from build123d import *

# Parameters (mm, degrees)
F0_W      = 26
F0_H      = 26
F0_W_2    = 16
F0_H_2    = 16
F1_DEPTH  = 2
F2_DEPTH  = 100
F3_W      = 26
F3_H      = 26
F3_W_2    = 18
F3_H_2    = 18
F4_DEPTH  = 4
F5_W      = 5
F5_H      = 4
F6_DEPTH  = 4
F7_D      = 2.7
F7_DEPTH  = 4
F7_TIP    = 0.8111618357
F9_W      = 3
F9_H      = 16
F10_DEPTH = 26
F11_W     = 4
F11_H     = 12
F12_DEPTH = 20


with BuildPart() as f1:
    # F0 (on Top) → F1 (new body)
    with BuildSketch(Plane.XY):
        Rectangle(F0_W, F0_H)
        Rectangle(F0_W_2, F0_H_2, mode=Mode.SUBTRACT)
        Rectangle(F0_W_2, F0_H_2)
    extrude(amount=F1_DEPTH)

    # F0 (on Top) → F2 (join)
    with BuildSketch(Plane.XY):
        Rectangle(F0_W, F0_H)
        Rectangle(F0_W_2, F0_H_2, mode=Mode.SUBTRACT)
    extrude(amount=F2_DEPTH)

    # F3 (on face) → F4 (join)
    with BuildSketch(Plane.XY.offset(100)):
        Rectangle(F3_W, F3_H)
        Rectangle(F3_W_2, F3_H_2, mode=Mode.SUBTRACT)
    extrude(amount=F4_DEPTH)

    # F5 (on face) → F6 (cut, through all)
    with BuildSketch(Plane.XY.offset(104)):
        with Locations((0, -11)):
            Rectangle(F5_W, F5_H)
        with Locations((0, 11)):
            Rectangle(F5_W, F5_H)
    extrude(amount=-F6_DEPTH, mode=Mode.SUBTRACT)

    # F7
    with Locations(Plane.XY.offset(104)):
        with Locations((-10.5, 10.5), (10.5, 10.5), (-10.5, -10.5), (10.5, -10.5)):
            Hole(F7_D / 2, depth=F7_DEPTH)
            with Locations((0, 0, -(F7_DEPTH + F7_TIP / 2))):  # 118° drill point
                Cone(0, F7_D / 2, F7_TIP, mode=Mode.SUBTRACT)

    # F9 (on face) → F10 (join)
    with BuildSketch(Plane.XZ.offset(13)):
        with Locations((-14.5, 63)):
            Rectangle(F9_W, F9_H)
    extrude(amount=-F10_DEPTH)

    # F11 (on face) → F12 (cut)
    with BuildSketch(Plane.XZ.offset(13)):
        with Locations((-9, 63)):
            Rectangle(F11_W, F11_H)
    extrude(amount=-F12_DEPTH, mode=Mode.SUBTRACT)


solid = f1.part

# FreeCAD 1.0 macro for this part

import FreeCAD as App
import Part
import Sketcher
from FreeCAD import Vector
Q = App.Units.Quantity

doc = App.newDocument("Part")
body = doc.addObject("PartDesign::Body", "Body")

# Sketch on XY plane
sketch1 = body.newObject("Sketcher::SketchObject", "Sketch")
sketch1.AttachmentSupport = (doc.getObject("XY_Plane"), [""])
sketch1.MapMode = "FlatFace"
sketch1.addGeometry(Part.LineSegment(Vector(-13, 13, 0), Vector(-13, -13, 0)), False)
sketch1.addGeometry(Part.LineSegment(Vector(-13, -13, 0), Vector(13, -13, 0)), False)
sketch1.addGeometry(Part.LineSegment(Vector(13, -13, 0), Vector(13, 13, 0)), False)
sketch1.addGeometry(Part.LineSegment(Vector(13, 13, 0), Vector(-13, 13, 0)), False)
sketch1.addConstraint(Sketcher.Constraint("Coincident", 0, 2, 1, 1))
sketch1.addConstraint(Sketcher.Constraint("Coincident", 1, 2, 2, 1))
sketch1.addConstraint(Sketcher.Constraint("Coincident", 2, 2, 3, 1))
sketch1.addConstraint(Sketcher.Constraint("Coincident", 3, 2, 0, 1))
sketch1.addConstraint(Sketcher.Constraint("Vertical", 0))
sketch1.addConstraint(Sketcher.Constraint("Horizontal", 1))
sketch1.addConstraint(Sketcher.Constraint("Vertical", 2))
sketch1.addConstraint(Sketcher.Constraint("Horizontal", 3))
sketch1.addConstraint(Sketcher.Constraint("Symmetric", 0, 2, 2, 2, -1, 1))
sketch1.addConstraint(Sketcher.Constraint("Equal", 3, 0))
sketch1.addConstraint(Sketcher.Constraint("DistanceX", 1, 1, 1, 2, Q("26 mm")))
pad1 = body.newObject("PartDesign::Pad", "Pad")
pad1.Profile = sketch1
pad1.Length = 2

# Sketch on XY plane
sketch2 = body.newObject("Sketcher::SketchObject", "Sketch001")
sketch2.AttachmentSupport = (doc.getObject("XY_Plane"), [""])
sketch2.MapMode = "FlatFace"
sketch2.addGeometry(Part.LineSegment(Vector(-13, 13, 0), Vector(-13, -13, 0)), False)
sketch2.addGeometry(Part.LineSegment(Vector(-13, -13, 0), Vector(13, -13, 0)), False)
sketch2.addGeometry(Part.LineSegment(Vector(13, -13, 0), Vector(13, 13, 0)), False)
sketch2.addGeometry(Part.LineSegment(Vector(13, 13, 0), Vector(-13, 13, 0)), False)
sketch2.addGeometry(Part.LineSegment(Vector(8, -8, 0), Vector(-8, -8, 0)), False)
sketch2.addGeometry(Part.LineSegment(Vector(-8, -8, 0), Vector(-8, 8, 0)), False)
sketch2.addGeometry(Part.LineSegment(Vector(-8, 8, 0), Vector(8, 8, 0)), False)
sketch2.addGeometry(Part.LineSegment(Vector(8, 8, 0), Vector(8, -8, 0)), False)
sketch2.addConstraint(Sketcher.Constraint("Coincident", 0, 2, 1, 1))
sketch2.addConstraint(Sketcher.Constraint("Coincident", 1, 2, 2, 1))
sketch2.addConstraint(Sketcher.Constraint("Coincident", 2, 2, 3, 1))
sketch2.addConstraint(Sketcher.Constraint("Coincident", 3, 2, 0, 1))
sketch2.addConstraint(Sketcher.Constraint("Coincident", 4, 2, 5, 1))
sketch2.addConstraint(Sketcher.Constraint("Coincident", 5, 2, 6, 1))
sketch2.addConstraint(Sketcher.Constraint("Coincident", 6, 2, 7, 1))
sketch2.addConstraint(Sketcher.Constraint("Coincident", 7, 2, 4, 1))
sketch2.addConstraint(Sketcher.Constraint("Vertical", 0))
sketch2.addConstraint(Sketcher.Constraint("Horizontal", 1))
sketch2.addConstraint(Sketcher.Constraint("Vertical", 2))
sketch2.addConstraint(Sketcher.Constraint("Horizontal", 3))
sketch2.addConstraint(Sketcher.Constraint("Horizontal", 4))
sketch2.addConstraint(Sketcher.Constraint("Vertical", 5))
sketch2.addConstraint(Sketcher.Constraint("Horizontal", 6))
sketch2.addConstraint(Sketcher.Constraint("Vertical", 7))
sketch2.addConstraint(Sketcher.Constraint("Symmetric", 0, 2, 2, 2, -1, 1))
sketch2.addConstraint(Sketcher.Constraint("Symmetric", 4, 2, 6, 2, -1, 1))
sketch2.addConstraint(Sketcher.Constraint("Equal", 3, 0))
sketch2.addConstraint(Sketcher.Constraint("Equal", 6, 5))
sketch2.addConstraint(Sketcher.Constraint("DistanceX", 1, 1, 1, 2, Q("26 mm")))
sketch2.addConstraint(Sketcher.Constraint("DistanceX", 4, 2, 4, 1, Q("16 mm")))
pad2 = body.newObject("PartDesign::Pad", "Pad001")
pad2.Profile = sketch2
pad2.Length = 100

# Sketch on XY plane
sketch3 = body.newObject("Sketcher::SketchObject", "Sketch002")
sketch3.AttachmentSupport = (doc.getObject("XY_Plane"), [""])
sketch3.MapMode = "FlatFace"
sketch3.AttachmentOffset = App.Placement(Vector(0, 0, 100), App.Rotation())
sketch3.addGeometry(Part.LineSegment(Vector(-13, 13, 0), Vector(-13, -13, 0)), False)
sketch3.addGeometry(Part.LineSegment(Vector(-13, -13, 0), Vector(13, -13, 0)), False)
sketch3.addGeometry(Part.LineSegment(Vector(13, -13, 0), Vector(13, 13, 0)), False)
sketch3.addGeometry(Part.LineSegment(Vector(13, 13, 0), Vector(-13, 13, 0)), False)
sketch3.addGeometry(Part.LineSegment(Vector(9, -9, 0), Vector(-9, -9, 0)), False)
sketch3.addGeometry(Part.LineSegment(Vector(-9, -9, 0), Vector(-9, 9, 0)), False)
sketch3.addGeometry(Part.LineSegment(Vector(-9, 9, 0), Vector(9, 9, 0)), False)
sketch3.addGeometry(Part.LineSegment(Vector(9, 9, 0), Vector(9, -9, 0)), False)
sketch3.addConstraint(Sketcher.Constraint("Coincident", 0, 2, 1, 1))
sketch3.addConstraint(Sketcher.Constraint("Coincident", 1, 2, 2, 1))
sketch3.addConstraint(Sketcher.Constraint("Coincident", 2, 2, 3, 1))
sketch3.addConstraint(Sketcher.Constraint("Coincident", 3, 2, 0, 1))
sketch3.addConstraint(Sketcher.Constraint("Coincident", 4, 2, 5, 1))
sketch3.addConstraint(Sketcher.Constraint("Coincident", 5, 2, 6, 1))
sketch3.addConstraint(Sketcher.Constraint("Coincident", 6, 2, 7, 1))
sketch3.addConstraint(Sketcher.Constraint("Coincident", 7, 2, 4, 1))
sketch3.addConstraint(Sketcher.Constraint("Vertical", 0))
sketch3.addConstraint(Sketcher.Constraint("Horizontal", 1))
sketch3.addConstraint(Sketcher.Constraint("Vertical", 2))
sketch3.addConstraint(Sketcher.Constraint("Horizontal", 3))
sketch3.addConstraint(Sketcher.Constraint("Horizontal", 4))
sketch3.addConstraint(Sketcher.Constraint("Vertical", 5))
sketch3.addConstraint(Sketcher.Constraint("Horizontal", 6))
sketch3.addConstraint(Sketcher.Constraint("Vertical", 7))
sketch3.addConstraint(Sketcher.Constraint("Symmetric", 0, 2, 2, 2, -1, 1))
sketch3.addConstraint(Sketcher.Constraint("Symmetric", 4, 2, 6, 2, -1, 1))
sketch3.addConstraint(Sketcher.Constraint("Equal", 3, 0))
sketch3.addConstraint(Sketcher.Constraint("Equal", 6, 5))
sketch3.addConstraint(Sketcher.Constraint("DistanceX", 1, 1, 1, 2, Q("26 mm")))
sketch3.addConstraint(Sketcher.Constraint("DistanceX", 4, 2, 4, 1, Q("18 mm")))
pad3 = body.newObject("PartDesign::Pad", "Pad002")
pad3.Profile = sketch3
pad3.Length = 4

# Sketch on XY plane
sketch4 = body.newObject("Sketcher::SketchObject", "Sketch003")
sketch4.AttachmentSupport = (doc.getObject("XY_Plane"), [""])
sketch4.MapMode = "FlatFace"
sketch4.AttachmentOffset = App.Placement(Vector(0, 0, 104), App.Rotation())
sketch4.addGeometry(Part.LineSegment(Vector(-2.5, -9, 0), Vector(-2.5, -13, 0)), False)
sketch4.addGeometry(Part.LineSegment(Vector(-2.5, -13, 0), Vector(2.5, -13, 0)), False)
sketch4.addGeometry(Part.LineSegment(Vector(2.5, -13, 0), Vector(2.5, -9, 0)), False)
sketch4.addGeometry(Part.LineSegment(Vector(2.5, -9, 0), Vector(-2.5, -9, 0)), False)
sketch4.addGeometry(Part.LineSegment(Vector(-2.5, 13, 0), Vector(-2.5, 9, 0)), False)
sketch4.addGeometry(Part.LineSegment(Vector(-2.5, 9, 0), Vector(2.5, 9, 0)), False)
sketch4.addGeometry(Part.LineSegment(Vector(2.5, 9, 0), Vector(2.5, 13, 0)), False)
sketch4.addGeometry(Part.LineSegment(Vector(2.5, 13, 0), Vector(-2.5, 13, 0)), False)
sketch4.addConstraint(Sketcher.Constraint("Coincident", 0, 2, 1, 1))
sketch4.addConstraint(Sketcher.Constraint("Coincident", 1, 2, 2, 1))
sketch4.addConstraint(Sketcher.Constraint("Coincident", 2, 2, 3, 1))
sketch4.addConstraint(Sketcher.Constraint("Coincident", 3, 2, 0, 1))
sketch4.addConstraint(Sketcher.Constraint("Coincident", 4, 2, 5, 1))
sketch4.addConstraint(Sketcher.Constraint("Coincident", 5, 2, 6, 1))
sketch4.addConstraint(Sketcher.Constraint("Coincident", 6, 2, 7, 1))
sketch4.addConstraint(Sketcher.Constraint("Coincident", 7, 2, 4, 1))
sketch4.addConstraint(Sketcher.Constraint("Vertical", 0))
sketch4.addConstraint(Sketcher.Constraint("Horizontal", 1))
sketch4.addConstraint(Sketcher.Constraint("Vertical", 2))
sketch4.addConstraint(Sketcher.Constraint("Horizontal", 3))
sketch4.addConstraint(Sketcher.Constraint("Vertical", 4))
sketch4.addConstraint(Sketcher.Constraint("Horizontal", 5))
sketch4.addConstraint(Sketcher.Constraint("Vertical", 6))
sketch4.addConstraint(Sketcher.Constraint("Horizontal", 7))
sketch4.addConstraint(Sketcher.Constraint("Symmetric", 2, 2, 4, 2, -1, 1))
sketch4.addConstraint(Sketcher.Constraint("Symmetric", 0, 2, 6, 2, -1, 1))
sketch4.addConstraint(Sketcher.Constraint("Vertical", 3, 2, 4, 2))
sketch4.addConstraint(Sketcher.Constraint("DistanceX", 1, 1, 1, 2, Q("5 mm")))
sketch4.addConstraint(Sketcher.Constraint("DistanceY", 0, 2, 0, 1, Q("4 mm")))
sketch4.addConstraint(Sketcher.Constraint("DistanceY", 0, 2, -1, 1, Q("13 mm")))
pocket1 = body.newObject("PartDesign::Pocket", "Pocket")
pocket1.Profile = sketch4
pocket1.Length = 4

# Sketch on XY plane
sketch5 = body.newObject("Sketcher::SketchObject", "Sketch004")
sketch5.AttachmentSupport = (doc.getObject("XY_Plane"), [""])
sketch5.MapMode = "FlatFace"
sketch5.AttachmentOffset = App.Placement(Vector(0, 0, 104), App.Rotation())
sketch5.addGeometry(Part.Circle(Vector(-10.5, 10.5, 0), Vector(0, 0, 1), 1.4), False)
sketch5.addGeometry(Part.Circle(Vector(10.5, 10.5, 0), Vector(0, 0, 1), 1.4), False)
sketch5.addGeometry(Part.Circle(Vector(-10.5, -10.5, 0), Vector(0, 0, 1), 1.4), False)
sketch5.addGeometry(Part.Circle(Vector(10.5, -10.5, 0), Vector(0, 0, 1), 1.4), False)
sketch5.addConstraint(Sketcher.Constraint("Equal", 0, 1))
sketch5.addConstraint(Sketcher.Constraint("Equal", 1, 2))
sketch5.addConstraint(Sketcher.Constraint("Equal", 2, 3))
sketch5.addConstraint(Sketcher.Constraint("Symmetric", 1, 3, 2, 3, -1, 1))
sketch5.addConstraint(Sketcher.Constraint("Symmetric", 0, 3, 3, 3, -1, 1))
sketch5.addConstraint(Sketcher.Constraint("Symmetric", 0, 3, 1, 3, -2))
sketch5.addConstraint(Sketcher.Constraint("Diameter", 0, Q("2.7 mm")))
sketch5.addConstraint(Sketcher.Constraint("DistanceX", 0, 3, 1, 3, Q("21 mm")))
sketch5.addConstraint(Sketcher.Constraint("DistanceY", 2, 3, 0, 3, Q("21 mm")))
doc.recompute()
hole = body.newObject("PartDesign::Hole", "Hole")
hole.Profile = sketch5
hole.ThreadType = "None"
hole.Diameter = 2.7
hole.DepthType = "Dimension"
hole.Depth = 4
hole.DrillPoint = "Angled"
hole.DrillPointAngle = 118

# Sketch on XZ plane
sketch6 = body.newObject("Sketcher::SketchObject", "Sketch005")
sketch6.AttachmentSupport = (doc.getObject("XZ_Plane"), [""])
sketch6.MapMode = "FlatFace"
sketch6.AttachmentOffset = App.Placement(Vector(0, 0, 13), App.Rotation())
sketch6.addGeometry(Part.LineSegment(Vector(-16, 71, 0), Vector(-16, 55, 0)), False)
sketch6.addGeometry(Part.LineSegment(Vector(-16, 55, 0), Vector(-13, 55, 0)), False)
sketch6.addGeometry(Part.LineSegment(Vector(-13, 55, 0), Vector(-13, 71, 0)), False)
sketch6.addGeometry(Part.LineSegment(Vector(-13, 71, 0), Vector(-16, 71, 0)), False)
sketch6.addConstraint(Sketcher.Constraint("Coincident", 0, 2, 1, 1))
sketch6.addConstraint(Sketcher.Constraint("Coincident", 1, 2, 2, 1))
sketch6.addConstraint(Sketcher.Constraint("Coincident", 2, 2, 3, 1))
sketch6.addConstraint(Sketcher.Constraint("Coincident", 3, 2, 0, 1))
sketch6.addConstraint(Sketcher.Constraint("Vertical", 0))
sketch6.addConstraint(Sketcher.Constraint("Horizontal", 1))
sketch6.addConstraint(Sketcher.Constraint("Vertical", 2))
sketch6.addConstraint(Sketcher.Constraint("Horizontal", 3))
sketch6.addConstraint(Sketcher.Constraint("DistanceX", 1, 1, 1, 2, Q("3 mm")))
sketch6.addConstraint(Sketcher.Constraint("DistanceY", 0, 2, 0, 1, Q("16 mm")))
sketch6.addConstraint(Sketcher.Constraint("DistanceX", 0, 2, -1, 1, Q("16 mm")))
sketch6.addConstraint(Sketcher.Constraint("DistanceY", -1, 1, 0, 2, Q("55 mm")))
pad4 = body.newObject("PartDesign::Pad", "Pad003")
pad4.Profile = sketch6
pad4.Length = 26
pad4.Reversed = True

# Sketch on XZ plane
sketch7 = body.newObject("Sketcher::SketchObject", "Sketch006")
sketch7.AttachmentSupport = (doc.getObject("XZ_Plane"), [""])
sketch7.MapMode = "FlatFace"
sketch7.AttachmentOffset = App.Placement(Vector(0, 0, 13), App.Rotation())
sketch7.addGeometry(Part.LineSegment(Vector(-11, 69, 0), Vector(-11, 57, 0)), False)
sketch7.addGeometry(Part.LineSegment(Vector(-11, 57, 0), Vector(-7, 57, 0)), False)
sketch7.addGeometry(Part.LineSegment(Vector(-7, 57, 0), Vector(-7, 69, 0)), False)
sketch7.addGeometry(Part.LineSegment(Vector(-7, 69, 0), Vector(-11, 69, 0)), False)
sketch7.addConstraint(Sketcher.Constraint("Coincident", 0, 2, 1, 1))
sketch7.addConstraint(Sketcher.Constraint("Coincident", 1, 2, 2, 1))
sketch7.addConstraint(Sketcher.Constraint("Coincident", 2, 2, 3, 1))
sketch7.addConstraint(Sketcher.Constraint("Coincident", 3, 2, 0, 1))
sketch7.addConstraint(Sketcher.Constraint("Vertical", 0))
sketch7.addConstraint(Sketcher.Constraint("Horizontal", 1))
sketch7.addConstraint(Sketcher.Constraint("Vertical", 2))
sketch7.addConstraint(Sketcher.Constraint("Horizontal", 3))
sketch7.addConstraint(Sketcher.Constraint("DistanceX", 1, 1, 1, 2, Q("4 mm")))
sketch7.addConstraint(Sketcher.Constraint("DistanceY", 0, 2, 0, 1, Q("12 mm")))
sketch7.addConstraint(Sketcher.Constraint("DistanceX", 0, 2, -1, 1, Q("11 mm")))
sketch7.addConstraint(Sketcher.Constraint("DistanceY", -1, 1, 0, 2, Q("57 mm")))
pocket2 = body.newObject("PartDesign::Pocket", "Pocket001")
pocket2.Profile = sketch7
pocket2.Length = 20

doc.recompute()
